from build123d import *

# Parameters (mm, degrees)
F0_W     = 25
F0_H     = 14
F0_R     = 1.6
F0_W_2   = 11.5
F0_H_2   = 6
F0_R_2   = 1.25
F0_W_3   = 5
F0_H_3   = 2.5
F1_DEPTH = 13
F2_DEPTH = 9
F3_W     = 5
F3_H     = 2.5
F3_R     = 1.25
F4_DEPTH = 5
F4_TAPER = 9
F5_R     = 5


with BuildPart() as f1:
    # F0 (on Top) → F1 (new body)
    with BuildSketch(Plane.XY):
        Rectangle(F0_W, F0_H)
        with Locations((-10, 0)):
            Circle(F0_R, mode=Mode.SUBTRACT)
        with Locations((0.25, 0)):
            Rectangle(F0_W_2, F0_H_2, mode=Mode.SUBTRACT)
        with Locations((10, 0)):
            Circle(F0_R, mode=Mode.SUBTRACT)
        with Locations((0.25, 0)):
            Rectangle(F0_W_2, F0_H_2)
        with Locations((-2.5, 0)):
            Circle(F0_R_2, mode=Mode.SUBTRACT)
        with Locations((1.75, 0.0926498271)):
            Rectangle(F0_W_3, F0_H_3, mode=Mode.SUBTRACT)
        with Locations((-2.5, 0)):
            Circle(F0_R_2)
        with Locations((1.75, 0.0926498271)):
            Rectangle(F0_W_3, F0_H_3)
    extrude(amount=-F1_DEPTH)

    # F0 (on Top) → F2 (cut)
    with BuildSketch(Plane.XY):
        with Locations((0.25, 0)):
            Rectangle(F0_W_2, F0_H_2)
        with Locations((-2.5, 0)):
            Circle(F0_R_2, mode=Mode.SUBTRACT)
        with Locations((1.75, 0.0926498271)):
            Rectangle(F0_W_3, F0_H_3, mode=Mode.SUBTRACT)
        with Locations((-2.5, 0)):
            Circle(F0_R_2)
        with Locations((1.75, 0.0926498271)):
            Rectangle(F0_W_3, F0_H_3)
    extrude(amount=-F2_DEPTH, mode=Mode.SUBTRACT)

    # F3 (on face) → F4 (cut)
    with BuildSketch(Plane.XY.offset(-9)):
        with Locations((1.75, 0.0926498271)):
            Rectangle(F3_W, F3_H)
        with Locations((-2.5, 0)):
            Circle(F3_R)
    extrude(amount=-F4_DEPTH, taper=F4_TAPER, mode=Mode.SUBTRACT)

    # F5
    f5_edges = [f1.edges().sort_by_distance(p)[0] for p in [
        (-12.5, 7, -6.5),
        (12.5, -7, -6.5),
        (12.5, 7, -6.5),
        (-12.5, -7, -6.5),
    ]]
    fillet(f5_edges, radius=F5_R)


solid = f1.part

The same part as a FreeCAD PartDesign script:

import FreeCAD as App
import Part
import Sketcher

V = App.Vector
Q = App.Units.Quantity


def edges_at(feature, points):
    """Names of the edges that pass closest to the given points."""
    edges = feature.Shape.Edges
    near = lambda p: min(range(len(edges)), key=lambda i: edges[i].distToShape(Part.Vertex(*p))[0])
    return sorted({f"Edge{near(p) + 1}" for p in points})

doc = App.newDocument("Part")
body = doc.addObject("PartDesign::Body", "Body")

sketch1 = body.newObject("Sketcher::SketchObject", "Sketch")
sketch1.AttachmentSupport = (doc.getObject("XY_Plane"), [""])
sketch1.MapMode = "FlatFace"
sketch1.addGeometry([
    Part.LineSegment(V(-12.5, 7, 0), V(-12.5, -7, 0)),
    Part.LineSegment(V(-12.5, -7, 0), V(12.5, -7, 0)),
    Part.LineSegment(V(12.5, -7, 0), V(12.5, 7, 0)),
    Part.LineSegment(V(12.5, 7, 0), V(-12.5, 7, 0)),
    Part.Circle(V(-10, 0, 0), V(0, 0, 1), 1.6),
    Part.Circle(V(10, 0, 0), V(0, 0, 1), 1.6),
], False)
sketch1.addConstraint([
    Sketcher.Constraint("Coincident", 0, 2, 1, 1),
    Sketcher.Constraint("Coincident", 1, 2, 2, 1),
    Sketcher.Constraint("Coincident", 2, 2, 3, 1),
    Sketcher.Constraint("Coincident", 3, 2, 0, 1),
    Sketcher.Constraint("Vertical", 0),
    Sketcher.Constraint("Horizontal", 1),
    Sketcher.Constraint("Vertical", 2),
    Sketcher.Constraint("Horizontal", 3),
    Sketcher.Constraint("Equal", 4, 5),
    Sketcher.Constraint("Symmetric", 4, 3, 5, 3, -1, 1),
    Sketcher.Constraint("Symmetric", 0, 2, 2, 2, -1, 1),
    Sketcher.Constraint("PointOnObject", 4, 3, -1),
    Sketcher.Constraint("Diameter", 4, Q("3.2 mm")),
    Sketcher.Constraint("DistanceX", 1, 1, 1, 2, Q("25 mm")),
    Sketcher.Constraint("DistanceY", 0, 2, 0, 1, Q("14 mm")),
    Sketcher.Constraint("DistanceX", 4, 3, -1, 1, Q("10 mm")),
])
pad1 = body.newObject("PartDesign::Pad", "Pad")
pad1.Profile = sketch1
pad1.Length = 13
pad1.Reversed = True

sketch2 = body.newObject("Sketcher::SketchObject", "Sketch001")
sketch2.AttachmentSupport = (doc.getObject("XY_Plane"), [""])
sketch2.MapMode = "FlatFace"
sketch2.addGeometry([
    Part.LineSegment(V(-6, 3, 0), V(-6, -3, 0)),
    Part.LineSegment(V(-6, -3, 0), V(6, -3, 0)),
    Part.LineSegment(V(6, -3, 0), V(6, 3, 0)),
    Part.LineSegment(V(6, 3, 0), V(-6, 3, 0)),
], False)
sketch2.addConstraint([
    Sketcher.Constraint("Coincident", 0, 2, 1, 1),
    Sketcher.Constraint("Coincident", 1, 2, 2, 1),
    Sketcher.Constraint("Coincident", 2, 2, 3, 1),
    Sketcher.Constraint("Coincident", 3, 2, 0, 1),
    Sketcher.Constraint("Vertical", 0),
    Sketcher.Constraint("Horizontal", 1),
    Sketcher.Constraint("Vertical", 2),
    Sketcher.Constraint("Horizontal", 3),
    Sketcher.Constraint("DistanceY", 0, 2, 0, 1, Q("6 mm")),
    Sketcher.Constraint("DistanceX", 1, 1, 1, 2, Q("11.5 mm")),
    Sketcher.Constraint("DistanceY", 0, 2, -1, 1, Q("3 mm")),
    Sketcher.Constraint("DistanceX", -1, 1, 1, 2, Q("6 mm")),
])
pocket1 = body.newObject("PartDesign::Pocket", "Pocket")
pocket1.Profile = sketch2
pocket1.Length = 9

sketch3 = body.newObject("Sketcher::SketchObject", "Sketch002")
sketch3.AttachmentSupport = (doc.getObject("XY_Plane"), [""])
sketch3.MapMode = "FlatFace"
sketch3.AttachmentOffset = App.Placement(V(0, 0, -9), App.Rotation())
sketch3.addGeometry([
    Part.LineSegment(V(-0.8, 1.3, 0), V(-0.8, -1.2, 0)),
    Part.LineSegment(V(-0.8, -1.2, 0), V(4.2, -1.2, 0)),
    Part.LineSegment(V(4.2, -1.2, 0), V(4.2, 1.3, 0)),
    Part.LineSegment(V(4.2, 1.3, 0), V(-0.8, 1.3, 0)),
    Part.Circle(V(-2.5, 0, 0), V(0, 0, 1), 1.2),
], False)
sketch3.addConstraint([
    Sketcher.Constraint("Coincident", 0, 2, 1, 1),
    Sketcher.Constraint("Coincident", 1, 2, 2, 1),
    Sketcher.Constraint("Coincident", 2, 2, 3, 1),
    Sketcher.Constraint("Coincident", 3, 2, 0, 1),
    Sketcher.Constraint("Vertical", 0),
    Sketcher.Constraint("Horizontal", 1),
    Sketcher.Constraint("Vertical", 2),
    Sketcher.Constraint("Horizontal", 3),
    Sketcher.Constraint("PointOnObject", 4, 3, -1),
    Sketcher.Constraint("Diameter", 4, Q("2.5 mm")),
    Sketcher.Constraint("DistanceX", 1, 1, 1, 2, Q("5 mm")),
    Sketcher.Constraint("DistanceY", 0, 2, 0, 1, Q("2.5 mm")),
    Sketcher.Constraint("DistanceX", 4, 3, -1, 1, Q("2.5 mm")),
    Sketcher.Constraint("DistanceX", 0, 2, -1, 1, Q("0.75 mm")),
    Sketcher.Constraint("DistanceY", 0, 2, -1, 1, Q("1.15735 mm")),
])
pocket2 = body.newObject("PartDesign::Pocket", "Pocket001")
pocket2.Profile = sketch3
pocket2.Length = 5
pocket2.TaperAngle = -9
doc.recompute()

fillet = body.newObject("PartDesign::Fillet", "Fillet")
fillet.Base = (pocket2, edges_at(pocket2, [
    (-12.5, 7, -6.5),
    (12.5, -7, -6.5),
    (12.5, 7, -6.5),
    (-12.5, -7, -6.5),
]))
fillet.Radius = 5

doc.recompute()
